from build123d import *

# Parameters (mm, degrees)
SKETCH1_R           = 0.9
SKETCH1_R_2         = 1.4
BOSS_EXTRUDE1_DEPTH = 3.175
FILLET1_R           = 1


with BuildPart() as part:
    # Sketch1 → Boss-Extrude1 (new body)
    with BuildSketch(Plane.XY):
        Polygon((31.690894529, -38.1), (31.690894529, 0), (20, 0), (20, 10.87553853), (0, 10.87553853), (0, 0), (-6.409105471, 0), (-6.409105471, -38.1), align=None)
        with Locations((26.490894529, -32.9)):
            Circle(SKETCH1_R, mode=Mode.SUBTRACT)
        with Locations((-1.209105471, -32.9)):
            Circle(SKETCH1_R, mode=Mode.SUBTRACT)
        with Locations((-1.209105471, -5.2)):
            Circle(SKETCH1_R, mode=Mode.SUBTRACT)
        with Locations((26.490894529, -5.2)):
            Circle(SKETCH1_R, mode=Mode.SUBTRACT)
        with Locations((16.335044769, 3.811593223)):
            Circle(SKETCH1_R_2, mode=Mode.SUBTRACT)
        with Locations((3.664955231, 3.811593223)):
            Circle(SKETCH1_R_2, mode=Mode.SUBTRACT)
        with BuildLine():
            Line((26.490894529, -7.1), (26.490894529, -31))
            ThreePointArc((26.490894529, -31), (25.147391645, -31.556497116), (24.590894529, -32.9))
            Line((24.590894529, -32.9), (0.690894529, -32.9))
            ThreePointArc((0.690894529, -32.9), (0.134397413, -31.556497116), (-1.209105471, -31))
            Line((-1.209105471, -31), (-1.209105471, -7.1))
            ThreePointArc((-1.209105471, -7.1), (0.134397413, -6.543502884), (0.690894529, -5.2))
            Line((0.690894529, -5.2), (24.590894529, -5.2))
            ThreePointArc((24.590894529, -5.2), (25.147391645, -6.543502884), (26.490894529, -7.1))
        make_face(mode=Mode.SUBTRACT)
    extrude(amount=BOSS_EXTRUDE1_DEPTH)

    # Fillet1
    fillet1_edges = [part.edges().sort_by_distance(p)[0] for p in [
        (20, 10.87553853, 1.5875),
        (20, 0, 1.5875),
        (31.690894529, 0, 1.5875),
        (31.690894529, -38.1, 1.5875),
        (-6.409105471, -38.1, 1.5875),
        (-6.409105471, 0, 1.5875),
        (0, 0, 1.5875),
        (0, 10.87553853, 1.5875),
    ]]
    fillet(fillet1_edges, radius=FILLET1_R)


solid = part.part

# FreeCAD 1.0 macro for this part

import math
import FreeCAD as App
import Part
import Sketcher


def edges_at(feature, points):
    """Names of the edges that pass closest to the given points."""
    edges = feature.Shape.Edges
    near = lambda p: min(range(len(edges)), key=lambda i: edges[i].distToShape(Part.Vertex(*p))[0])
    return sorted({f"Edge{near(p) + 1}" for p in points})


def add_polygon(sketch, points):
    """Adds a closed chain of lines whose ends are joined by coincident constraints."""
    first, n = sketch.GeometryCount, len(points)
    for a, b in zip(points, points[1:] + points[:1]):
        sketch.addGeometry(Part.LineSegment(App.Vector(*a, 0), App.Vector(*b, 0)), False)
    for i in range(n):
        sketch.addConstraint(Sketcher.Constraint("Coincident", first + i, 2, first + (i + 1) % n, 1))

doc = App.newDocument("Part")
body = doc.addObject("PartDesign::Body", "Body")

sketch1 = body.newObject("Sketcher::SketchObject", "Sketch")
sketch1.AttachmentSupport = (doc.getObject("XY_Plane"), [""])
sketch1.MapMode = "FlatFace"
add_polygon(sketch1, [(31.7, -38.1), (31.7, 0), (20, 0), (20, 10.9), (0, 10.9), (0, 0), (-6.4, 0), (-6.4, -38.1)])
sketch1.addGeometry(Part.Circle(App.Vector(-1.2, -32.9, 0), App.Vector(0, 0, 1), 0.9), False)
sketch1.addGeometry(Part.Circle(App.Vector(26.5, -32.9, 0), App.Vector(0, 0, 1), 0.9), False)
sketch1.addGeometry(Part.ArcOfCircle(Part.Circle(App.Vector(26.5, -5.2, 0), App.Vector(0, 0, 1), 1.9), math.radians(-180), math.radians(-90)), False)
sketch1.addGeometry(Part.LineSegment(App.Vector(26.5, -7.1, 0), App.Vector(26.5, -31, 0)), False)
sketch1.addGeometry(Part.ArcOfCircle(Part.Circle(App.Vector(26.5, -32.9, 0), App.Vector(0, 0, 1), 1.9), math.radians(90), math.radians(180)), False)
sketch1.addGeometry(Part.LineSegment(App.Vector(24.6, -32.9, 0), App.Vector(0.7, -32.9, 0)), False)
sketch1.addGeometry(Part.ArcOfCircle(Part.Circle(App.Vector(-1.2, -32.9, 0), App.Vector(0, 0, 1), 1.9), math.radians(0), math.radians(90)), False)
sketch1.addGeometry(Part.LineSegment(App.Vector(-1.2, -31, 0), App.Vector(-1.2, -7.1, 0)), False)
sketch1.addGeometry(Part.ArcOfCircle(Part.Circle(App.Vector(-1.2, -5.2, 0), App.Vector(0, 0, 1), 1.9), math.radians(-90), math.radians(0)), False)
sketch1.addGeometry(Part.LineSegment(App.Vector(0.7, -5.2, 0), App.Vector(24.6, -5.2, 0)), False)
sketch1.addGeometry(Part.Circle(App.Vector(-1.2, -5.2, 0), App.Vector(0, 0, 1), 0.9), False)
sketch1.addGeometry(Part.Circle(App.Vector(3.7, 3.8, 0), App.Vector(0, 0, 1), 1.4), False)
sketch1.addGeometry(Part.Circle(App.Vector(26.5, -5.2, 0), App.Vector(0, 0, 1), 0.9), False)
sketch1.addGeometry(Part.Circle(App.Vector(16.3, 3.8, 0), App.Vector(0, 0, 1), 1.4), False)
sketch1.addConstraint(Sketcher.Constraint("Coincident", 10, 2, 11, 1))
sketch1.addConstraint(Sketcher.Constraint("Coincident", 11, 2, 12, 1))
sketch1.addConstraint(Sketcher.Constraint("Coincident", 12, 2, 13, 1))
sketch1.addConstraint(Sketcher.Constraint("Coincident", 13, 2, 14, 1))
sketch1.addConstraint(Sketcher.Constraint("Coincident", 14, 2, 15, 1))
sketch1.addConstraint(Sketcher.Constraint("Coincident", 15, 2, 16, 1))
sketch1.addConstraint(Sketcher.Constraint("Coincident", 16, 2, 17, 1))
sketch1.addConstraint(Sketcher.Constraint("Coincident", 17, 2, 10, 1))
sketch1.addConstraint(Sketcher.Constraint("Vertical", 0))
sketch1.addConstraint(Sketcher.Constraint("Horizontal", 1))
sketch1.addConstraint(Sketcher.Constraint("Vertical", 2))
sketch1.addConstraint(Sketcher.Constraint("Horizontal", 3))
sketch1.addConstraint(Sketcher.Constraint("Vertical", 4))
sketch1.addConstraint(Sketcher.Constraint("Horizontal", 5))
sketch1.addConstraint(Sketcher.Constraint("Vertical", 6))
sketch1.addConstraint(Sketcher.Constraint("Horizontal", 7))
sketch1.addConstraint(Sketcher.Constraint("Vertical", 11))
sketch1.addConstraint(Sketcher.Constraint("Horizontal", 13))
sketch1.addConstraint(Sketcher.Constraint("Vertical", 15))
sketch1.addConstraint(Sketcher.Constraint("Horizontal", 17))
sketch1.addConstraint(Sketcher.Constraint("Coincident", 4, 2, -1, 1))
sketch1.addConstraint(Sketcher.Constraint("Coincident", 12, 3, 9, 3))
sketch1.addConstraint(Sketcher.Constraint("Coincident", 14, 3, 8, 3))
sketch1.addConstraint(Sketcher.Constraint("Coincident", 18, 3, 16, 3))
sketch1.addConstraint(Sketcher.Constraint("Coincident", 20, 3, 10, 3))
sketch1.addConstraint(Sketcher.Constraint("Equal", 8, 9))
sketch1.addConstraint(Sketcher.Constraint("Equal", 10, 12))
sketch1.addConstraint(Sketcher.Constraint("Equal", 12, 14))
sketch1.addConstraint(Sketcher.Constraint("Equal", 14, 16))
sketch1.addConstraint(Sketcher.Constraint("Equal", 9, 18))
sketch1.addConstraint(Sketcher.Constraint("Equal", 18, 20))
sketch1.addConstraint(Sketcher.Constraint("Equal", 19, 21))
sketch1.addConstraint(Sketcher.Constraint("PointOnObject", 0, 2, -1))
sketch1.addConstraint(Sketcher.Constraint("Horizontal", 8, 3, 9, 3))
sketch1.addConstraint(Sketcher.Constraint("Horizontal", 10, 3, 16, 3))
sketch1.addConstraint(Sketcher.Constraint("Horizontal", 19, 3, 21, 3))
sketch1.addConstraint(Sketcher.Constraint("Horizontal", 14, 3, 12, 2))
sketch1.addConstraint(Sketcher.Constraint("Horizontal", 20, 3, 16, 2))
sketch1.addConstraint(Sketcher.Constraint("Vertical", 9, 3, 10, 3))
sketch1.addConstraint(Sketcher.Constraint("Vertical", 14, 3, 16, 3))
sketch1.addConstraint(Sketcher.Constraint("Vertical", 20, 3, 10, 2))
sketch1.addConstraint(Sketcher.Constraint("Vertical", 18, 3, 14, 2))
sketch1.addConstraint(Sketcher.Constraint("Equal", 7, 0))
sketch1.addConstraint(Sketcher.Constraint("Equal", 17, 11))
sketch1.addConstraint(Sketcher.Constraint("Diameter", 8, 1.8))
sketch1.addConstraint(Sketcher.Constraint("Diameter", 19, 2.8))
sketch1.addConstraint(Sketcher.Constraint("Radius", 10, 1.9))
sketch1.addConstraint(Sketcher.Constraint("DistanceX", 3, 2, 3, 1, 20.0))
sketch1.addConstraint(Sketcher.Constraint("DistanceX", 7, 1, 7, 2, 38.1))
sketch1.addConstraint(Sketcher.Constraint("DistanceX", 13, 2, 13, 1, 23.9))
sketch1.addConstraint(Sketcher.Constraint("DistanceY", 11, 2, -1, 1, 31.0))
sketch1.addConstraint(Sketcher.Constraint("DistanceX", 10, 3, 0, 2, 5.2))
sketch1.addConstraint(Sketcher.Constraint("DistanceY", 2, 1, 2, 2, 10.875539))
sketch1.addConstraint(Sketcher.Constraint("DistanceX", 1, 2, 1, 1, 11.690895))
sketch1.addConstraint(Sketcher.Constraint("DistanceX", 16, 3, 19, 3, 4.874061))
sketch1.addConstraint(Sketcher.Constraint("DistanceX", 19, 3, 21, 3, 12.67009))
sketch1.addConstraint(Sketcher.Constraint("DistanceY", -1, 1, 19, 3, 3.811593))
pad1 = body.newObject("PartDesign::Pad", "Pad")
pad1.Profile = sketch1
pad1.Length = 3.175
doc.recompute()

fillet = body.newObject("PartDesign::Fillet", "Fillet")
fillet.Base = (pad1, edges_at(pad1, [
    (20, 10.876, 1.587),
    (20, 0, 1.587),
    (31.691, 0, 1.587),
    (31.691, -38.1, 1.587),
    (-6.409, -38.1, 1.587),
    (-6.409, 0, 1.587),
    (0, 0, 1.587),
    (0, 10.876, 1.587),
]))
fillet.Radius = 1

doc.recompute()
